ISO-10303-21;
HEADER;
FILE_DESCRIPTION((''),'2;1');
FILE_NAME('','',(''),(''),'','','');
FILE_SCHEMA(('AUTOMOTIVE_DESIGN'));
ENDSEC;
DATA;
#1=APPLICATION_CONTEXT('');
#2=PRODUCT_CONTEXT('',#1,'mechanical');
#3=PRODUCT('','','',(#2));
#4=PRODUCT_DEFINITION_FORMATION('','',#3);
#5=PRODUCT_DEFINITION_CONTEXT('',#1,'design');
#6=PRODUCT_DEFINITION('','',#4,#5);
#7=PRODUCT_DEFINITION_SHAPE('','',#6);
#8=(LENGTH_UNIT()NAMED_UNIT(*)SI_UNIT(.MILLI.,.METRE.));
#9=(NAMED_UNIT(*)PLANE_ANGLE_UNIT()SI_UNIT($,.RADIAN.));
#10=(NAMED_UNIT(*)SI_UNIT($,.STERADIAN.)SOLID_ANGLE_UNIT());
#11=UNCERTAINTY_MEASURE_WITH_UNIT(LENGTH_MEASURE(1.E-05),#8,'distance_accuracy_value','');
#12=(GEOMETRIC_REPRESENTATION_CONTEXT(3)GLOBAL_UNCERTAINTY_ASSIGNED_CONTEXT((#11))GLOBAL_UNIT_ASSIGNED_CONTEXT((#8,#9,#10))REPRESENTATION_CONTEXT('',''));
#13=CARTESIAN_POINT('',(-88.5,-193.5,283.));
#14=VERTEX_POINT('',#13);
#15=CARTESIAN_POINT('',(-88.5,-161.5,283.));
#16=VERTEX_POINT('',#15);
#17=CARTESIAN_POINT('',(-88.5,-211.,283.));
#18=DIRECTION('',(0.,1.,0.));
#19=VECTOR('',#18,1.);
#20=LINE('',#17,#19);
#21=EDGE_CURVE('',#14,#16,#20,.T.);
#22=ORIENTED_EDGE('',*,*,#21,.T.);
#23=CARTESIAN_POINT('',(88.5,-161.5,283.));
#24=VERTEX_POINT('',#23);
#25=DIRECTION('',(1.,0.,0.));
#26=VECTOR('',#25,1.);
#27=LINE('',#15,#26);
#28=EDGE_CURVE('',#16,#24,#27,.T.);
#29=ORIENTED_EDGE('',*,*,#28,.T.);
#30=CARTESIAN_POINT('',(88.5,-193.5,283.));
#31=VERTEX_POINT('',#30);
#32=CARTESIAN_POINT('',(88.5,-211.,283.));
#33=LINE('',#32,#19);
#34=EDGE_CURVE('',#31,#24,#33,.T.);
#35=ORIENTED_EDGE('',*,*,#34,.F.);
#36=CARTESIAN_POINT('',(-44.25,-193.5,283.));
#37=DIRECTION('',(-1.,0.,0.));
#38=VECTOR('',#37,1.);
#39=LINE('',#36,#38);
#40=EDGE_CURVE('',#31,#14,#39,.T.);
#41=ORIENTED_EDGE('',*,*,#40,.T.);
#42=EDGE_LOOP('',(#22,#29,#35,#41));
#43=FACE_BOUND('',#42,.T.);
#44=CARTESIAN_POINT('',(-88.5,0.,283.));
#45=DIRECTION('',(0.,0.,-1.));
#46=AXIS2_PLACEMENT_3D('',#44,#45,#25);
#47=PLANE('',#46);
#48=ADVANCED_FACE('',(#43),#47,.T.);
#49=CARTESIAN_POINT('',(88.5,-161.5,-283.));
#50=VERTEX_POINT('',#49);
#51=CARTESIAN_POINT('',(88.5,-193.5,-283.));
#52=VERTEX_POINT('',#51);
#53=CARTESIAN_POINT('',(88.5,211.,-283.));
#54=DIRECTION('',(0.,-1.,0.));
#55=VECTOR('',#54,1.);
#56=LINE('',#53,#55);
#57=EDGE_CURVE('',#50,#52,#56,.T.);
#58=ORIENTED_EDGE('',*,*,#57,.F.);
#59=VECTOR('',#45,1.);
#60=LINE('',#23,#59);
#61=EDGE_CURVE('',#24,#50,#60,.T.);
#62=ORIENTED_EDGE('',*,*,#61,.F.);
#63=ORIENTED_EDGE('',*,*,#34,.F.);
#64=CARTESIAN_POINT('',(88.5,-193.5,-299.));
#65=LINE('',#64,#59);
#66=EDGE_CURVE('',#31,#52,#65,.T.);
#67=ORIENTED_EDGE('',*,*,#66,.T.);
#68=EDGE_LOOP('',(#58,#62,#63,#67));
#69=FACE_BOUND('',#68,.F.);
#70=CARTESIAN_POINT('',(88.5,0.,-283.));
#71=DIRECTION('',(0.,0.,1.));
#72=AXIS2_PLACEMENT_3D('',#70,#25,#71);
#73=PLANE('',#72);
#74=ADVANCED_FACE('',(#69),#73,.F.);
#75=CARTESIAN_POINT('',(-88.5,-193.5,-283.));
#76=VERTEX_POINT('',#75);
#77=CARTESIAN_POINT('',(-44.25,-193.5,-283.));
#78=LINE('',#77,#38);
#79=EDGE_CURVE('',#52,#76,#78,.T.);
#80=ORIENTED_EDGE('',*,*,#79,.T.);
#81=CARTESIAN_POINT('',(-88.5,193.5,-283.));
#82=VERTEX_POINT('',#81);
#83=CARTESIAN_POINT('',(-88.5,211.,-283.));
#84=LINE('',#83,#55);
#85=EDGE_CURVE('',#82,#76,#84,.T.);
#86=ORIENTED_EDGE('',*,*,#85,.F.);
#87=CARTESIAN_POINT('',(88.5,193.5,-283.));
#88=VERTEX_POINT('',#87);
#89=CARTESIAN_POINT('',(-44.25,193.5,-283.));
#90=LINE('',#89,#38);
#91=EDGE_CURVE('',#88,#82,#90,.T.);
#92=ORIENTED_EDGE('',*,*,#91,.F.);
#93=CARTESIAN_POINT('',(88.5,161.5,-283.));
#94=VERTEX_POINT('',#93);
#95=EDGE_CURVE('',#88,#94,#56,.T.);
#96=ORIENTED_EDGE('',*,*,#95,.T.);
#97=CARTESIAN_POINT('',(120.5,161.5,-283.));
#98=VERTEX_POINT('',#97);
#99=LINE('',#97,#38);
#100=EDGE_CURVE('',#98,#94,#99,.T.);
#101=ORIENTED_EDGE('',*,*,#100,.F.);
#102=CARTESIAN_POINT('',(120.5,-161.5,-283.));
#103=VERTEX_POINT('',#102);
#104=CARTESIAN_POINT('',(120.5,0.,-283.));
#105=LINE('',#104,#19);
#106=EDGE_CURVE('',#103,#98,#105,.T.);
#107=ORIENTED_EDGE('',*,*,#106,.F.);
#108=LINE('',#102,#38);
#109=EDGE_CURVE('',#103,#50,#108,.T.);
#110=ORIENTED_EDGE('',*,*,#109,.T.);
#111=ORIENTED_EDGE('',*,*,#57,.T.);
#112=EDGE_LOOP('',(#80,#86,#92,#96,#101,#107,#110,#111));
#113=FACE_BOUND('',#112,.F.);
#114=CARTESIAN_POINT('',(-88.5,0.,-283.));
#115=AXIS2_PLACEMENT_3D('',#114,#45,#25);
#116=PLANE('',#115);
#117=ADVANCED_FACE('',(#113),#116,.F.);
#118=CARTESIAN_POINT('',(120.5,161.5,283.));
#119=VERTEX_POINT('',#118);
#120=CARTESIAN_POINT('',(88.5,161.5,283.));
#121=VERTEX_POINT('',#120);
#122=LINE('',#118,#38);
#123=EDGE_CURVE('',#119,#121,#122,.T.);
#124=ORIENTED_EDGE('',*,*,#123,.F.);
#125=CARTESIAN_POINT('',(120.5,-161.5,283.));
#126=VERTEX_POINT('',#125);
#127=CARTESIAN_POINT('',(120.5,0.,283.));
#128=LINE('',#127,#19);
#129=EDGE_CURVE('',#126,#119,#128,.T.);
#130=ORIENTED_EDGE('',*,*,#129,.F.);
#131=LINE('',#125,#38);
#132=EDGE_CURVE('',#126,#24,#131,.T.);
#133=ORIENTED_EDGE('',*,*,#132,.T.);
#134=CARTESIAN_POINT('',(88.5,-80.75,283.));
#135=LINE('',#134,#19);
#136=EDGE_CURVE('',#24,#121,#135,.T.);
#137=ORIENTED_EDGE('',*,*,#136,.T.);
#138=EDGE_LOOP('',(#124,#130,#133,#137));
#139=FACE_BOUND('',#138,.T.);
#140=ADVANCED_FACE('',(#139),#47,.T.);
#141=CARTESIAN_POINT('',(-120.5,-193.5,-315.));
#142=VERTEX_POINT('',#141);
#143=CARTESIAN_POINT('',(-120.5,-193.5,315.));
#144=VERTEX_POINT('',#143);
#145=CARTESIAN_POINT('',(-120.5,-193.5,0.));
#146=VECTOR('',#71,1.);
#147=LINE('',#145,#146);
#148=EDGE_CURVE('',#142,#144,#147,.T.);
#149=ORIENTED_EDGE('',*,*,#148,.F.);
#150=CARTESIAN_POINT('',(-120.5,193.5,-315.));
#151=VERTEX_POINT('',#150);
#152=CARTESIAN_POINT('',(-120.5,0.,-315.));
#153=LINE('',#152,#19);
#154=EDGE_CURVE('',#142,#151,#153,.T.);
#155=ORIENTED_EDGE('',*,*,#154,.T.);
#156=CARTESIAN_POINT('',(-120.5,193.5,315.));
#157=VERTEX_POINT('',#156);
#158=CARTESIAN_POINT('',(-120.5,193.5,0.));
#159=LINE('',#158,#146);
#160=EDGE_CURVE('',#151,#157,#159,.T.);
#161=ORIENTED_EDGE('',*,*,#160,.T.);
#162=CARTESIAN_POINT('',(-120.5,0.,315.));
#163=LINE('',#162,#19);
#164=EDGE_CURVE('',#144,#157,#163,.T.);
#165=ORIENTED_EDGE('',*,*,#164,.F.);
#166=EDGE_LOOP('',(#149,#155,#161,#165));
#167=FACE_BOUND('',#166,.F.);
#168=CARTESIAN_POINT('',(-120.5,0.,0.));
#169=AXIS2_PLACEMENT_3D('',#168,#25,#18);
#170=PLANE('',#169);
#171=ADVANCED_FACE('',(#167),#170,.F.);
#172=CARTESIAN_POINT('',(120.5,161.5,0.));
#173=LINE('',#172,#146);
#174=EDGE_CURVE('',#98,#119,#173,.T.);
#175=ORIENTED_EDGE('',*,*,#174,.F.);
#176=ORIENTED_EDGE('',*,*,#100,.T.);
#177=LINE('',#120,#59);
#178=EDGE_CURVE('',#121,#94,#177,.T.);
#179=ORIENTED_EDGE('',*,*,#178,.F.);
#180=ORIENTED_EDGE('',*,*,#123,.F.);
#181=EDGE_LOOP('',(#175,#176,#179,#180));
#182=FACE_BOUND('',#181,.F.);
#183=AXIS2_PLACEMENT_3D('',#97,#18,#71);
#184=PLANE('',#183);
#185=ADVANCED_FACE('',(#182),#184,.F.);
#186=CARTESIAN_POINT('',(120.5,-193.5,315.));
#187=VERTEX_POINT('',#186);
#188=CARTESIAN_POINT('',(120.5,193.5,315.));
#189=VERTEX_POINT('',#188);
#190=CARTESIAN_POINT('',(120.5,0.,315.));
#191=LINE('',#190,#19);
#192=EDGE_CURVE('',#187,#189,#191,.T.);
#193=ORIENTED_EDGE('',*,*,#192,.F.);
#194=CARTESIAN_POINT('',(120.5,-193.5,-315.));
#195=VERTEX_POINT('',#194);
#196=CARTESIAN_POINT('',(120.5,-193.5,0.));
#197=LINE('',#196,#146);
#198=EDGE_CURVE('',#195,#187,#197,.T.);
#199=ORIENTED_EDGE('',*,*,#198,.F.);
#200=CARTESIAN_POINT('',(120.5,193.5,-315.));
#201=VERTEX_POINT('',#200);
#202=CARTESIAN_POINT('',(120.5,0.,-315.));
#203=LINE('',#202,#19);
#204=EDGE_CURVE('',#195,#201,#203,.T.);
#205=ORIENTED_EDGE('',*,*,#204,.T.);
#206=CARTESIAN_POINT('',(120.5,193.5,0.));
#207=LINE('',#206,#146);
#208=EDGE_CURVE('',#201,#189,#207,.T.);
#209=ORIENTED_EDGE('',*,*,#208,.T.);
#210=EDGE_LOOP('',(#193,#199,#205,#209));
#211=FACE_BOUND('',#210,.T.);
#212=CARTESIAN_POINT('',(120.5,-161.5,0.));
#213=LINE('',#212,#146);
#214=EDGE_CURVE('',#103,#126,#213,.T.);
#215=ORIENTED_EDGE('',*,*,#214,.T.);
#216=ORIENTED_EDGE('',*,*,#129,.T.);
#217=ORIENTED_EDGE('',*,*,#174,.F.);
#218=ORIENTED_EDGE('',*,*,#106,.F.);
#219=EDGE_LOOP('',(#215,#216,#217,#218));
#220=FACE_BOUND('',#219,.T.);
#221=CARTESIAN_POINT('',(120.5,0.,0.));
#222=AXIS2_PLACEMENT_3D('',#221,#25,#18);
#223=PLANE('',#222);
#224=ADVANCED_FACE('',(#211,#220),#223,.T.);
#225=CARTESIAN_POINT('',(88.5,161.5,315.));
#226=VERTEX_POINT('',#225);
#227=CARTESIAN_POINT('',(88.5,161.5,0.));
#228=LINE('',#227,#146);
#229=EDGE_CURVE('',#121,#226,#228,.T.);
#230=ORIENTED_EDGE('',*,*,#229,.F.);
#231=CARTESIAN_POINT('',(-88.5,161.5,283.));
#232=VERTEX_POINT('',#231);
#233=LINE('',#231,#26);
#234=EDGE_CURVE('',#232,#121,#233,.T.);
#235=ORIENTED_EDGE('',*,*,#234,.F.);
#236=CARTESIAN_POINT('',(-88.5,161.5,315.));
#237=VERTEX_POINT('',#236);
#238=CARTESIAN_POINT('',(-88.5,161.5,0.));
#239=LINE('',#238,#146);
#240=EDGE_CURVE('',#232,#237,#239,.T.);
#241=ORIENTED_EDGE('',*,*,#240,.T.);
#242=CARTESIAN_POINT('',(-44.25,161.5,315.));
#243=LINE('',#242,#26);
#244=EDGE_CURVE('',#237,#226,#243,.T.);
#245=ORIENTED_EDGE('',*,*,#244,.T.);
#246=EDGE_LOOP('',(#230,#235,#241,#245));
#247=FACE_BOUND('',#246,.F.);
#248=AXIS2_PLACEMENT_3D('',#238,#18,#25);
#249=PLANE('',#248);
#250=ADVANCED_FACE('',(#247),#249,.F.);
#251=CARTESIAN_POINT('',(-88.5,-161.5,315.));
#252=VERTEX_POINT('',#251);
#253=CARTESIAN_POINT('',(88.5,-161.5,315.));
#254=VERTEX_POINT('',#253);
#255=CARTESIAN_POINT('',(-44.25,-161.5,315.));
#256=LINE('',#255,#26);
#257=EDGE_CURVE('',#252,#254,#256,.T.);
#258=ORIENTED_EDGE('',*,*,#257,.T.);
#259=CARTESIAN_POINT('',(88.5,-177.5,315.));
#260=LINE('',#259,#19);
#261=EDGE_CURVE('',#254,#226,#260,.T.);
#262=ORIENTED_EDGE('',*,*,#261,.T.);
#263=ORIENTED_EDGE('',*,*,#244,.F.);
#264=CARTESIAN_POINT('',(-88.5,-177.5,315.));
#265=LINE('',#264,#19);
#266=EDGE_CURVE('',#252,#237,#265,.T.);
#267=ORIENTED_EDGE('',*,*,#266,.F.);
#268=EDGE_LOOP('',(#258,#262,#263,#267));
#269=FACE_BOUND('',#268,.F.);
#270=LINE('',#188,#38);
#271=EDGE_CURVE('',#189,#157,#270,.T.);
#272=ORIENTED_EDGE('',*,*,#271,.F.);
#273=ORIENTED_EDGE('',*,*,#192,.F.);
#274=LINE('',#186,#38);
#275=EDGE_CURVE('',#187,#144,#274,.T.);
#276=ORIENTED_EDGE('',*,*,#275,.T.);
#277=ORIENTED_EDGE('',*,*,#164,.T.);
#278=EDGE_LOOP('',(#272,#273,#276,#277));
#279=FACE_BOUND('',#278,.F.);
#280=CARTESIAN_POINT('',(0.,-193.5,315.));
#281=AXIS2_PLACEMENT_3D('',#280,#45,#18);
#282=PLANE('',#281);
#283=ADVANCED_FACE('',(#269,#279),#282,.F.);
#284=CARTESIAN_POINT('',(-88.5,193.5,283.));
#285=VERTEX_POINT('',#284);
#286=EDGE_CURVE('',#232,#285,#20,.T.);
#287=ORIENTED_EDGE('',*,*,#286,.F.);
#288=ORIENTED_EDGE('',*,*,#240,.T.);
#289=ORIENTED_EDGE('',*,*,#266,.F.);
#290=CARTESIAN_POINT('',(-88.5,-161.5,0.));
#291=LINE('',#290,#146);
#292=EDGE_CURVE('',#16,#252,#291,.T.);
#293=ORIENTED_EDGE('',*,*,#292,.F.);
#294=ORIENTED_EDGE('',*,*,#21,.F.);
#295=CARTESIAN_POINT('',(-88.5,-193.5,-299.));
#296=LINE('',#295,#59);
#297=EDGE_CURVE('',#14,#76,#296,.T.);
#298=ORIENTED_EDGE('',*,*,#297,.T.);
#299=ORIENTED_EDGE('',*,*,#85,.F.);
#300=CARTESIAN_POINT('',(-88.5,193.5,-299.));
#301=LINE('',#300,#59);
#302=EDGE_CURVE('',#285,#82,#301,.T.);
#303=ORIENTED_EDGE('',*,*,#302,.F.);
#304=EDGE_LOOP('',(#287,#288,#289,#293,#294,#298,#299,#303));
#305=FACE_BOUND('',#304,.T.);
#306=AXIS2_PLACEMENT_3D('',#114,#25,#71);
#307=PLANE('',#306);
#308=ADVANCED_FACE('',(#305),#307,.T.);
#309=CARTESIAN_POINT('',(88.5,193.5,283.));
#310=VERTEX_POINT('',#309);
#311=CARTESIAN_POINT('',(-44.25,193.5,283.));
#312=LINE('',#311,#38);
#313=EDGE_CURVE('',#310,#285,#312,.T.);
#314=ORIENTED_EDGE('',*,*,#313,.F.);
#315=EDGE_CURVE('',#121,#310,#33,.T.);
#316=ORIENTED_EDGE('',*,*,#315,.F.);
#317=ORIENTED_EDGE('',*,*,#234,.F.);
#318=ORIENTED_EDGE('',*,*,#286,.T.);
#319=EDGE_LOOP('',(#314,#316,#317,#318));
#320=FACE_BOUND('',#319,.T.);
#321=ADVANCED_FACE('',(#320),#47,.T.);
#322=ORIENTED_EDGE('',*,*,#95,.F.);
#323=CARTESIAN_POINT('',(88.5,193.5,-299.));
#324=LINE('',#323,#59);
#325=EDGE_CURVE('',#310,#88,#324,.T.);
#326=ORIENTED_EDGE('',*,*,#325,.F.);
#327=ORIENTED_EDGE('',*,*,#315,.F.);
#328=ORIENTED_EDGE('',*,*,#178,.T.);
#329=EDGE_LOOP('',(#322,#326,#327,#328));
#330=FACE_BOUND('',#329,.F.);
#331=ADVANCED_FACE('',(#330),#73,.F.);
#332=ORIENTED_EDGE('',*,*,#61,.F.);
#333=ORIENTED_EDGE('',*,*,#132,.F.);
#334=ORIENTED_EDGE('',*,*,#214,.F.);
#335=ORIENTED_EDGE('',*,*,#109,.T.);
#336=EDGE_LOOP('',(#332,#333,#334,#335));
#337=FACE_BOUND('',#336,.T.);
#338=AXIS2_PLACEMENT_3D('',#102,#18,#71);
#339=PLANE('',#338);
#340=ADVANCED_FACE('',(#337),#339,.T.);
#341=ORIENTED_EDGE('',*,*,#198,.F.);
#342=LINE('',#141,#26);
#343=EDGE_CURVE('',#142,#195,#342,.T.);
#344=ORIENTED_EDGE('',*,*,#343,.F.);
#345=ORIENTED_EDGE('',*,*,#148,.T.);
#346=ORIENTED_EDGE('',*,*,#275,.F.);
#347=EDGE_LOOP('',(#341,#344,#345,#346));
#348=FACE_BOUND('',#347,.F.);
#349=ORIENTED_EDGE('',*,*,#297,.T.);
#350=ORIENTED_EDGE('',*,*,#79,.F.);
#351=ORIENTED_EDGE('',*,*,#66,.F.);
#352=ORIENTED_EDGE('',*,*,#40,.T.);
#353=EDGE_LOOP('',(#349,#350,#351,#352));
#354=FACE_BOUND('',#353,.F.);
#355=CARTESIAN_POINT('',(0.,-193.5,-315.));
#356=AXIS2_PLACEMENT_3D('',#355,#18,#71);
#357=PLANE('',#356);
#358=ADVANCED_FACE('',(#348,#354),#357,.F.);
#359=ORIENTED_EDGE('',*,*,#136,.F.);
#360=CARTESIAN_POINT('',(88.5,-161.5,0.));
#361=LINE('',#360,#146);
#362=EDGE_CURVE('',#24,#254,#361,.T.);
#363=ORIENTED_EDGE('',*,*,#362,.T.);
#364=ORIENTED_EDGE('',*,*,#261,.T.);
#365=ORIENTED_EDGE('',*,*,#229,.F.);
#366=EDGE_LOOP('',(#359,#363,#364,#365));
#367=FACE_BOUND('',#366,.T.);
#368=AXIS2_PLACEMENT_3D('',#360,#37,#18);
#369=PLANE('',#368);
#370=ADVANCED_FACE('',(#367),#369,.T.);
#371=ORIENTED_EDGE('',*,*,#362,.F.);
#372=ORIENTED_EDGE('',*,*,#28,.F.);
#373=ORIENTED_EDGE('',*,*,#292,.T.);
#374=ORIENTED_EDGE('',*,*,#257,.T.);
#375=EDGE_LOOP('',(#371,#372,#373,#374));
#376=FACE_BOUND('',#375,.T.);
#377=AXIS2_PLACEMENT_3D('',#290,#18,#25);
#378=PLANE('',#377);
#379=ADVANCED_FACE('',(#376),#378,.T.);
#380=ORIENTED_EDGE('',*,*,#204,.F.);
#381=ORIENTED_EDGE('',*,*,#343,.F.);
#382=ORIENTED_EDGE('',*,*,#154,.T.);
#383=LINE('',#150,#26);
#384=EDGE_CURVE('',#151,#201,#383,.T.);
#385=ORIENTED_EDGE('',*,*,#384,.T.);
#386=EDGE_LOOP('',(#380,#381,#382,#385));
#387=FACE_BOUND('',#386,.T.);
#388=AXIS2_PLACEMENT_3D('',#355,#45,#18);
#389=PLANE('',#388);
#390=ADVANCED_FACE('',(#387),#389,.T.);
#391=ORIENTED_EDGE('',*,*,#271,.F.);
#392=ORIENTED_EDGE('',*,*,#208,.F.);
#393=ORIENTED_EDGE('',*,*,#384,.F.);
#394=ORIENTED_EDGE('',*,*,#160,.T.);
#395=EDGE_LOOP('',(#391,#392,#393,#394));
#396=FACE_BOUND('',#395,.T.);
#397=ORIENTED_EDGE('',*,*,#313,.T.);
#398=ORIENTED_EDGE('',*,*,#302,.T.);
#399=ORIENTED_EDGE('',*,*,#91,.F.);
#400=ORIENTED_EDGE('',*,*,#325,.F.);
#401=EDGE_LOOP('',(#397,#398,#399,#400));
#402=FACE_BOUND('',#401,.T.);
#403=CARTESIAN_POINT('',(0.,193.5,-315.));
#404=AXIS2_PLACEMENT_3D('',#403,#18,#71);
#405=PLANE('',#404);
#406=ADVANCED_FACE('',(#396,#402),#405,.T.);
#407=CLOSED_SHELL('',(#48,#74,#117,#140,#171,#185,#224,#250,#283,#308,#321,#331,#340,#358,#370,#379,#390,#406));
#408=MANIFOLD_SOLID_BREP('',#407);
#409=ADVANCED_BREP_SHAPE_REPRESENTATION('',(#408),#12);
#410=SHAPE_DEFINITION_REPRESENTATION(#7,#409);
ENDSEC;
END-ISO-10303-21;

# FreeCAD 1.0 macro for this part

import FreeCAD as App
import Part
import Sketcher

doc = App.newDocument("Part")
body = doc.addObject("PartDesign::Body", "Body")

sketch1 = body.newObject("Sketcher::SketchObject", "Sketch")
sketch1.AttachmentSupport = (doc.getObject("YZ_Plane"), [""])
sketch1.MapMode = "FlatFace"
sketch1.addGeometry([
    Part.LineSegment(App.Vector(-193.5, 315, 0), App.Vector(-193.5, -315, 0)),
    Part.LineSegment(App.Vector(-193.5, -315, 0), App.Vector(193.5, -315, 0)),
    Part.LineSegment(App.Vector(193.5, -315, 0), App.Vector(193.5, 315, 0)),
    Part.LineSegment(App.Vector(193.5, 315, 0), App.Vector(-193.5, 315, 0)),
], False)
sketch1.addConstraint([
    Sketcher.Constraint("Coincident", 0, 2, 1, 1),
    Sketcher.Constraint("Coincident", 1, 2, 2, 1),
    Sketcher.Constraint("Coincident", 2, 2, 3, 1),
    Sketcher.Constraint("Coincident", 3, 2, 0, 1),
    Sketcher.Constraint("Vertical", 0),
    Sketcher.Constraint("Horizontal", 1),
    Sketcher.Constraint("Vertical", 2),
    Sketcher.Constraint("Horizontal", 3),
    Sketcher.Constraint("Symmetric", 0, 2, 2, 2, -1, 1),
    Sketcher.Constraint("DistanceX", 1, 1, 1, 2, 387.0),
    Sketcher.Constraint("DistanceY", 0, 2, 0, 1, 630.0),
])
pad1 = body.newObject("PartDesign::Pad", "Pad")
pad1.Profile = sketch1
pad1.Length = 241
pad1.Midplane = True
body2 = doc.addObject("PartDesign::Body", "Body001")

sketch2 = body2.newObject("Sketcher::SketchObject", "Sketch001")
sketch2.AttachmentSupport = (doc.getObject("XY_Plane001"), [""])
sketch2.MapMode = "FlatFace"
sketch2.addGeometry([
    Part.LineSegment(App.Vector(-88.5, 161.5, 0), App.Vector(-88.5, -161.5, 0)),
    Part.LineSegment(App.Vector(-88.5, -161.5, 0), App.Vector(88.5, -161.5, 0)),
    Part.LineSegment(App.Vector(88.5, -161.5, 0), App.Vector(88.5, 161.5, 0)),
    Part.LineSegment(App.Vector(88.5, 161.5, 0), App.Vector(-88.5, 161.5, 0)),
], False)
sketch2.addConstraint([
    Sketcher.Constraint("Coincident", 0, 2, 1, 1),
    Sketcher.Constraint("Coincident", 1, 2, 2, 1),
    Sketcher.Constraint("Coincident", 2, 2, 3, 1),
    Sketcher.Constraint("Coincident", 3, 2, 0, 1),
    Sketcher.Constraint("Vertical", 0),
    Sketcher.Constraint("Horizontal", 1),
    Sketcher.Constraint("Vertical", 2),
    Sketcher.Constraint("Horizontal", 3),
    Sketcher.Constraint("Symmetric", 0, 2, 2, 2, -1, 1),
    Sketcher.Constraint("DistanceX", 1, 1, 1, 2, 177.0),
    Sketcher.Constraint("DistanceY", 0, 2, 0, 1, 323.0),
])
pad2 = body2.newObject("PartDesign::Pad", "Pad001")
pad2.Profile = sketch2
pad2.Length = 291
pad2.Midplane = True
body3 = doc.addObject("PartDesign::Body", "Body002")

sketch3 = body3.newObject("Sketcher::SketchObject", "Sketch002")
sketch3.AttachmentSupport = (doc.getObject("YZ_Plane002"), [""])
sketch3.MapMode = "FlatFace"
sketch3.AttachmentOffset = App.Placement(App.Vector(0, 0, 120.5), App.Rotation())
sketch3.addGeometry([
    Part.LineSegment(App.Vector(-161.5, 283, 0), App.Vector(-161.5, -283, 0)),
    Part.LineSegment(App.Vector(-161.5, -283, 0), App.Vector(161.5, -283, 0)),
    Part.LineSegment(App.Vector(161.5, -283, 0), App.Vector(161.5, 283, 0)),
    Part.LineSegment(App.Vector(161.5, 283, 0), App.Vector(-161.5, 283, 0)),
], False)
sketch3.addConstraint([
    Sketcher.Constraint("Coincident", 0, 2, 1, 1),
    Sketcher.Constraint("Coincident", 1, 2, 2, 1),
    Sketcher.Constraint("Coincident", 2, 2, 3, 1),
    Sketcher.Constraint("Coincident", 3, 2, 0, 1),
    Sketcher.Constraint("Vertical", 0),
    Sketcher.Constraint("Horizontal", 1),
    Sketcher.Constraint("Vertical", 2),
    Sketcher.Constraint("Horizontal", 3),
    Sketcher.Constraint("Symmetric", 0, 2, 2, 2, -1, 1),
    Sketcher.Constraint("DistanceX", 1, 1, 1, 2, 323.0),
    Sketcher.Constraint("DistanceY", 0, 2, 0, 1, 566.0),
])
pad3 = body3.newObject("PartDesign::Pad", "Pad002")
pad3.Profile = sketch3
pad3.Length = 193
pad3.Reversed = True
doc.recompute()

body4 = doc.addObject("PartDesign::Body", "Body003")
body4.BaseFeature = body3
boolean = body.newObject("PartDesign::Boolean", "Boolean")
boolean.Type = "Cut"
boolean.addObjects([body4])
doc.recompute()

boolean2 = body2.newObject("PartDesign::Boolean", "Boolean001")
boolean2.Type = "Cut"
boolean2.addObjects([body3])
body5 = doc.addObject("PartDesign::Body", "Body004")

sketch4 = body5.newObject("Sketcher::SketchObject", "Sketch003")
sketch4.AttachmentSupport = (doc.getObject("XZ_Plane004"), [""])
sketch4.MapMode = "FlatFace"
sketch4.addGeometry([
    Part.LineSegment(App.Vector(-88.5, 283, 0), App.Vector(-88.5, -283, 0)),
    Part.LineSegment(App.Vector(-88.5, -283, 0), App.Vector(88.5, -283, 0)),
    Part.LineSegment(App.Vector(88.5, -283, 0), App.Vector(88.5, 283, 0)),
    Part.LineSegment(App.Vector(88.5, 283, 0), App.Vector(-88.5, 283, 0)),
], False)
sketch4.addConstraint([
    Sketcher.Constraint("Coincident", 0, 2, 1, 1),
    Sketcher.Constraint("Coincident", 1, 2, 2, 1),
    Sketcher.Constraint("Coincident", 2, 2, 3, 1),
    Sketcher.Constraint("Coincident", 3, 2, 0, 1),
    Sketcher.Constraint("Vertical", 0),
    Sketcher.Constraint("Horizontal", 1),
    Sketcher.Constraint("Vertical", 2),
    Sketcher.Constraint("Horizontal", 3),
    Sketcher.Constraint("Symmetric", 0, 2, 2, 2, -1, 1),
    Sketcher.Constraint("DistanceX", 1, 1, 1, 2, 177.0),
    Sketcher.Constraint("DistanceY", 0, 2, 0, 1, 566.0),
])
pad4 = body5.newObject("PartDesign::Pad", "Pad003")
pad4.Profile = sketch4
pad4.Length = 422
pad4.Midplane = True
doc.recompute()

body6 = doc.addObject("PartDesign::Body", "Body005")
body6.BaseFeature = body5
boolean3 = body.newObject("PartDesign::Boolean", "Boolean002")
boolean3.Type = "Cut"
boolean3.addObjects([body6])
doc.recompute()

sketch5 = body.newObject("Sketcher::SketchObject", "Sketch004")
sketch5.AttachmentSupport = (doc.getObject("XY_Plane"), [""])
sketch5.MapMode = "FlatFace"
sketch5.addGeometry([
    Part.LineSegment(App.Vector(-88.5, 161.5, 0), App.Vector(-88.5, -161.5, 0)),
    Part.LineSegment(App.Vector(-88.5, -161.5, 0), App.Vector(88.5, -161.5, 0)),
    Part.LineSegment(App.Vector(88.5, -161.5, 0), App.Vector(88.5, 161.5, 0)),
    Part.LineSegment(App.Vector(88.5, 161.5, 0), App.Vector(-88.5, 161.5, 0)),
], False)
sketch5.addConstraint([
    Sketcher.Constraint("Coincident", 0, 2, 1, 1),
    Sketcher.Constraint("Coincident", 1, 2, 2, 1),
    Sketcher.Constraint("Coincident", 2, 2, 3, 1),
    Sketcher.Constraint("Coincident", 3, 2, 0, 1),
    Sketcher.Constraint("Vertical", 0),
    Sketcher.Constraint("Horizontal", 1),
    Sketcher.Constraint("Vertical", 2),
    Sketcher.Constraint("Horizontal", 3),
    Sketcher.Constraint("Symmetric", 0, 2, 2, 2, -1, 1),
    Sketcher.Constraint("DistanceX", 1, 1, 1, 2, 177.0),
    Sketcher.Constraint("DistanceY", 0, 2, 0, 1, 323.0),
])
pocket1 = body.newObject("PartDesign::Pocket", "Pocket")
pocket1.Profile = sketch5
pocket1.Type = "ThroughAll"
pocket1.Reversed = True
doc.recompute()

boolean4 = body2.newObject("PartDesign::Boolean", "Boolean003")
boolean4.Type = "Cut"
boolean4.addObjects([body5])

doc.recompute()
